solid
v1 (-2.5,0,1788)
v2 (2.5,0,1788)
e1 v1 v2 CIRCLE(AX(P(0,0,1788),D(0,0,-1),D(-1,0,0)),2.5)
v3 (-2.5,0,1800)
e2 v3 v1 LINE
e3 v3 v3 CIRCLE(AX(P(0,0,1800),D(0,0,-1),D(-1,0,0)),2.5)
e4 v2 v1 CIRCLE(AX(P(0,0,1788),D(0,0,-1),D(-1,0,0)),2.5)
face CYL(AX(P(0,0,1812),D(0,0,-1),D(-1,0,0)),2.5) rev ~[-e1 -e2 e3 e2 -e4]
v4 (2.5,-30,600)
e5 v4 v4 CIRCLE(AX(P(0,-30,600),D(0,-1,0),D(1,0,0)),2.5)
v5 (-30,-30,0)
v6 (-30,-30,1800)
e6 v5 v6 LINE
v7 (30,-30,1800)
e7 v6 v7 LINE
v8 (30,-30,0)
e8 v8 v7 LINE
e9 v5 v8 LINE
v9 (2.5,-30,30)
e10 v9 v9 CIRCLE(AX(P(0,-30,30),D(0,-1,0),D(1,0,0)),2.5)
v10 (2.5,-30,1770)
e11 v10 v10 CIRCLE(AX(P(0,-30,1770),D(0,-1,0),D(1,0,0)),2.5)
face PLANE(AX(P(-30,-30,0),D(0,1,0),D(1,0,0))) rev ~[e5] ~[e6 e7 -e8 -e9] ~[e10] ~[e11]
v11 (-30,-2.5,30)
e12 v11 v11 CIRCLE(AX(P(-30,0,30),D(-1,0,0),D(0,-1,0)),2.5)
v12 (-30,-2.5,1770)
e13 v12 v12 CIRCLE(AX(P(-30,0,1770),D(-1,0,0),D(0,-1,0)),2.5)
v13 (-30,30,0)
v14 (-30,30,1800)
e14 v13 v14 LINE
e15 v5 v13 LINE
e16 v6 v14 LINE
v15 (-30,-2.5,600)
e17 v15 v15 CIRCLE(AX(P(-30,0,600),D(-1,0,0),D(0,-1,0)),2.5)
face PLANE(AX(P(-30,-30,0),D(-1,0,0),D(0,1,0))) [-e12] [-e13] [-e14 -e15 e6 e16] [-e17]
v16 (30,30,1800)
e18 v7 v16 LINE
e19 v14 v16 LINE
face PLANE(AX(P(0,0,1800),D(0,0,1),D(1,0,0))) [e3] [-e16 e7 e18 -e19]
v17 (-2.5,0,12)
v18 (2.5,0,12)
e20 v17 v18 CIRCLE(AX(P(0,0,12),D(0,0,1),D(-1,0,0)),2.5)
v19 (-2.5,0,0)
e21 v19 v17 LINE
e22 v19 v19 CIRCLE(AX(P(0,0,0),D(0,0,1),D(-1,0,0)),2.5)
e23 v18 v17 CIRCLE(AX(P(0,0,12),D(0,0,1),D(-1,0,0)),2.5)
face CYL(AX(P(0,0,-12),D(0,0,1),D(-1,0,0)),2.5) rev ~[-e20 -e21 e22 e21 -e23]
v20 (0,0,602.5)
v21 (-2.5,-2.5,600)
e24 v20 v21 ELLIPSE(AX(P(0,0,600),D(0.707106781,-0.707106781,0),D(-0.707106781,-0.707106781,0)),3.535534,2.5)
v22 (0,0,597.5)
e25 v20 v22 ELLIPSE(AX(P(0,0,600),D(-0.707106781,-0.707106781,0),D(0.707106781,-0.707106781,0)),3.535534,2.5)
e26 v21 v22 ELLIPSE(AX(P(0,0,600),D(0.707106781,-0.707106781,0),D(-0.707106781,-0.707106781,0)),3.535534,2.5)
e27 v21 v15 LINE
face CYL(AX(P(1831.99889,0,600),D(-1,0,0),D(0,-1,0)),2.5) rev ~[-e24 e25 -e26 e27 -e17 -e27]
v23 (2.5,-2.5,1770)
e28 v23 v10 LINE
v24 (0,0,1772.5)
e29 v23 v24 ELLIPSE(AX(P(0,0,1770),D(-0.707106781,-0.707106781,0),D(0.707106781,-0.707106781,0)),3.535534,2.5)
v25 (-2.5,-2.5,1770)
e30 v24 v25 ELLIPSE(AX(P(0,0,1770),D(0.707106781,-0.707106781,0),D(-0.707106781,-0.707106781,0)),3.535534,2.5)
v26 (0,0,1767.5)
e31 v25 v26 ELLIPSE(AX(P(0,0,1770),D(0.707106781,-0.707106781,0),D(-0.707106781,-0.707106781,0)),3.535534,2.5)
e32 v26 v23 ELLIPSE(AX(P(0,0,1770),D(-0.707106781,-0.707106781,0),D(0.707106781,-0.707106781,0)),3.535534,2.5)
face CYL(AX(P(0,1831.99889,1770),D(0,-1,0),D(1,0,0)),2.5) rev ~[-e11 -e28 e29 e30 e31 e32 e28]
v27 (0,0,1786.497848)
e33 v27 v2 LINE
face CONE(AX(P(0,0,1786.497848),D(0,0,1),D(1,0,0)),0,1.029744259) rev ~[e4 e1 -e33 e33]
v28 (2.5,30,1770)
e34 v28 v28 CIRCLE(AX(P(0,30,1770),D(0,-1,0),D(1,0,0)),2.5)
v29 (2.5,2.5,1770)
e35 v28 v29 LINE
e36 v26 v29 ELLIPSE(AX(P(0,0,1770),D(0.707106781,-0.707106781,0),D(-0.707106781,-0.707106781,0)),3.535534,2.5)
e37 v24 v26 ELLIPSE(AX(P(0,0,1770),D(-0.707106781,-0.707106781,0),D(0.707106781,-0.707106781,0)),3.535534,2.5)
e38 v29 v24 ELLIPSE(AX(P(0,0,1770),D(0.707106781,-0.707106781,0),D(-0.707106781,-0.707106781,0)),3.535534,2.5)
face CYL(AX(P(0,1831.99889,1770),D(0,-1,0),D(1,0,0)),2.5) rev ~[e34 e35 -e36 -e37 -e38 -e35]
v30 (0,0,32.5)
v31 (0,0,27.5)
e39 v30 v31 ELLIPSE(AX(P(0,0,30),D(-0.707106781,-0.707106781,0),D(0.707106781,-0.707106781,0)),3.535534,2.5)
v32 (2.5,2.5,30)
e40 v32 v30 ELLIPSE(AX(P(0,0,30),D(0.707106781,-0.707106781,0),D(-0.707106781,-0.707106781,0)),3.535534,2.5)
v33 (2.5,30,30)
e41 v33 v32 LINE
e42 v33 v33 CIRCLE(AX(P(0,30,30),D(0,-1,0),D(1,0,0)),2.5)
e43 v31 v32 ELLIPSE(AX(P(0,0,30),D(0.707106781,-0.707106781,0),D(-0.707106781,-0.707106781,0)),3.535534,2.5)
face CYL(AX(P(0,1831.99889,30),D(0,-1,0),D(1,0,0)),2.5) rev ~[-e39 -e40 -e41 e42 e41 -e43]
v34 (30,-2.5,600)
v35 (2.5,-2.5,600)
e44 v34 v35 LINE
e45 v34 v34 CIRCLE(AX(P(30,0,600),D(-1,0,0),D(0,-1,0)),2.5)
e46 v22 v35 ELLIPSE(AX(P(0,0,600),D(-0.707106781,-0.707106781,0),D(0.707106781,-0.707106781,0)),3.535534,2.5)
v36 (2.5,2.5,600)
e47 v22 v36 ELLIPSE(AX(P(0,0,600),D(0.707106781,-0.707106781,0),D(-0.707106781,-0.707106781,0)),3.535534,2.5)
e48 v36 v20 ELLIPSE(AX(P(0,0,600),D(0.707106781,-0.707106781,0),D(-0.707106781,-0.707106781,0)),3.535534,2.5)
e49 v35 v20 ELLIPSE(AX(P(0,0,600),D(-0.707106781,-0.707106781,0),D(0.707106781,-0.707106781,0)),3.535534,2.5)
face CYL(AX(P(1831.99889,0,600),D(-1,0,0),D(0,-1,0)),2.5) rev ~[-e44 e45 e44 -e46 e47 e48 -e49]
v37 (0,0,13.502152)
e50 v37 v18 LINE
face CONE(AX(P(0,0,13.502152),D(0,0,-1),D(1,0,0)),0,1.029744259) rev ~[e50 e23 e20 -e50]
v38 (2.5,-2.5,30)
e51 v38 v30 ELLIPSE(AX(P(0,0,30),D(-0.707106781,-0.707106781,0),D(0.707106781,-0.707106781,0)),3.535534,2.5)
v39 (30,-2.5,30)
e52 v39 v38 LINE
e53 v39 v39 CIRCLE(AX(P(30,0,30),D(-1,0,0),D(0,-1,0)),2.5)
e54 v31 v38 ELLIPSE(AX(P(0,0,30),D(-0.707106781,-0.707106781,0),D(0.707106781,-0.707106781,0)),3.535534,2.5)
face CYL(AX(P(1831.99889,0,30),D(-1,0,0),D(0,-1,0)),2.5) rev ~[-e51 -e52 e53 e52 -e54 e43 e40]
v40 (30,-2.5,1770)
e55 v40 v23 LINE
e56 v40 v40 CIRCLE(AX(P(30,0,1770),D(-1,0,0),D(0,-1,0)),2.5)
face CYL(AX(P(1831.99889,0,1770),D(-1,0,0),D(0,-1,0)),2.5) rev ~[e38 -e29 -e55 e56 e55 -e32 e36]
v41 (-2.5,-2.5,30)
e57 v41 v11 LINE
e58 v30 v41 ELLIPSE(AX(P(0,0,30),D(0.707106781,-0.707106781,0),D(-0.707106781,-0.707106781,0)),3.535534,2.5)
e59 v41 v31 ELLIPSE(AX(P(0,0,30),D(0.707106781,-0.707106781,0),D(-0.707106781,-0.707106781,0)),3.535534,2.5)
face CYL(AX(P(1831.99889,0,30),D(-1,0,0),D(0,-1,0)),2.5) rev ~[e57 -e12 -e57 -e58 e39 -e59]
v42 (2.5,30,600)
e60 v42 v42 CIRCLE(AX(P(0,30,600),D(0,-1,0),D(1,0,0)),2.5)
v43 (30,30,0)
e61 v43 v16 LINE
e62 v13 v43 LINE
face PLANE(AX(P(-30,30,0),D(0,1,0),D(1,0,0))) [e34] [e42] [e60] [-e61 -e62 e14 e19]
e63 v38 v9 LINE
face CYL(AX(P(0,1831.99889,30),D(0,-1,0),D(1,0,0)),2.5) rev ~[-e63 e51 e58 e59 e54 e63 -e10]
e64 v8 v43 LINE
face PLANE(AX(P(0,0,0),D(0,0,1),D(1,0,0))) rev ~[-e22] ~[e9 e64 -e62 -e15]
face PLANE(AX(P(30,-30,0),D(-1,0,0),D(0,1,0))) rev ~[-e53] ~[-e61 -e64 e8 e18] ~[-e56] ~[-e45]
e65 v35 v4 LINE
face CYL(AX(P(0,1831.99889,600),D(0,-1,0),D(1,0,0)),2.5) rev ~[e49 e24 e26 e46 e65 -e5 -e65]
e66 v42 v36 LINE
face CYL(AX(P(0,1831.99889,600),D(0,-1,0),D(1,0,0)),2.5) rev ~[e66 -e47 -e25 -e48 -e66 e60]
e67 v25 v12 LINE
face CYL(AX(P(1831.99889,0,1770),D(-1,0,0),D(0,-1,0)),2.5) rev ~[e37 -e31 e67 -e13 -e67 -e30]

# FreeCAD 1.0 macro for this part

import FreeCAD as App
import Part
import Sketcher
from FreeCAD import Vector


def add_polygon(sketch, points):
    """Adds a closed chain of lines whose ends are joined by coincident constraints."""
    first, n = sketch.GeometryCount, len(points)
    for a, b in zip(points, points[1:] + points[:1]):
        sketch.addGeometry(Part.LineSegment(App.Vector(*a, 0), App.Vector(*b, 0)), False)
    for i in range(n):
        sketch.addConstraint(Sketcher.Constraint("Coincident", first + i, 2, first + (i + 1) % n, 1))

doc = App.newDocument("Part")
body = doc.addObject("PartDesign::Body", "Body")

sketch1 = doc.addObject("Sketcher::SketchObject", "Sketch")
body.addObject(sketch1)
sketch1.AttachmentSupport = (doc.XY_Plane, [""])
sketch1.MapMode = "FlatFace"
add_polygon(sketch1, [(-30, 30), (-30, -30), (30, -30), (30, 30)])
sketch1.addConstraint([
    Sketcher.Constraint("Vertical", 0),
    Sketcher.Constraint("Horizontal", 1),
    Sketcher.Constraint("Vertical", 2),
    Sketcher.Constraint("Horizontal", 3),
    Sketcher.Constraint("Symmetric", 0, 2, 2, 2, -1, 1),
    Sketcher.Constraint("Equal", 3, 0),
    Sketcher.Constraint("DistanceX", 1, 1, 1, 2, 60.0),
])
pad1 = doc.addObject("PartDesign::Pad", "Pad")
body.addObject(pad1)
pad1.Profile = sketch1
pad1.Length = 1800

sketch2 = doc.addObject("Sketcher::SketchObject", "Sketch001")
body.addObject(sketch2)
sketch2.AttachmentSupport = (doc.XY_Plane, [""])
sketch2.MapMode = "FlatFace"
sketch2.AttachmentOffset = App.Placement(Vector(0, 0, 1800), App.Rotation())
sketch2.addGeometry(Part.Circle(Vector(0, 0, 0), Vector(0, 0, 1), 2.5), False)
sketch2.addConstraint([
    Sketcher.Constraint("Coincident", 0, 3, -1, 1),
    Sketcher.Constraint("Diameter", 0, 5.0),
])
doc.recompute()
hole = doc.addObject("PartDesign::Hole", "Hole")
body.addObject(hole)
hole.Profile = sketch2
hole.ThreadType = "None"
hole.Diameter = 5
hole.DepthType = "Dimension"
hole.Depth = 12
hole.DrillPoint = "Angled"
hole.DrillPointAngle = 118

sketch3 = doc.addObject("Sketcher::SketchObject", "Sketch002")
body.addObject(sketch3)
sketch3.AttachmentSupport = (doc.XY_Plane, [""])
sketch3.MapMode = "FlatFace"
sketch3.addGeometry(Part.Circle(Vector(0, 0, 0), Vector(0, 0, 1), 2.5), False)
sketch3.addConstraint([
    Sketcher.Constraint("Coincident", 0, 3, -1, 1),
    Sketcher.Constraint("Diameter", 0, 5.0),
])
doc.recompute()
hole2 = doc.addObject("PartDesign::Hole", "Hole001")
body.addObject(hole2)
hole2.Profile = sketch3
hole2.ThreadType = "None"
hole2.Diameter = 5
hole2.DepthType = "Dimension"
hole2.Depth = 12
hole2.DrillPoint = "Angled"
hole2.DrillPointAngle = 118
hole2.Reversed = True

sketch4 = doc.addObject("Sketcher::SketchObject", "Sketch003")
body.addObject(sketch4)
sketch4.AttachmentSupport = (doc.XZ_Plane, [""])
sketch4.MapMode = "FlatFace"
sketch4.AttachmentOffset = App.Placement(Vector(0, 0, -30), App.Rotation())
sketch4.addGeometry([
    Part.Circle(Vector(0, 1770, 0), Vector(0, 0, 1), 2.5),
    Part.Circle(Vector(0, 30, 0), Vector(0, 0, 1), 2.5),
    Part.Circle(Vector(0, 600, 0), Vector(0, 0, 1), 2.5),
], False)
sketch4.addConstraint([
    Sketcher.Constraint("Equal", 0, 1),
    Sketcher.Constraint("Equal", 1, 2),
    Sketcher.Constraint("PointOnObject", 0, 3, -2),
    Sketcher.Constraint("PointOnObject", 1, 3, -2),
    Sketcher.Constraint("PointOnObject", 2, 3, -2),
    Sketcher.Constraint("Diameter", 0, 5.0),
    Sketcher.Constraint("DistanceY", -1, 1, 0, 3, 1770.0),
    Sketcher.Constraint("DistanceY", -1, 1, 1, 3, 30.0),
    Sketcher.Constraint("DistanceY", -1, 1, 2, 3, 600.0),
])
doc.recompute()
hole3 = doc.addObject("PartDesign::Hole", "Hole002")
body.addObject(hole3)
hole3.Profile = sketch4
hole3.ThreadType = "None"
hole3.Diameter = 5
hole3.DepthType = "ThroughAll"
hole3.Reversed = True

sketch5 = doc.addObject("Sketcher::SketchObject", "Sketch004")
body.addObject(sketch5)
sketch5.AttachmentSupport = (doc.YZ_Plane, [""])
sketch5.MapMode = "FlatFace"
sketch5.AttachmentOffset = App.Placement(Vector(0, 0, 30), App.Rotation())
sketch5.addGeometry([
    Part.Circle(Vector(0, 1770, 0), Vector(0, 0, 1), 2.5),
    Part.Circle(Vector(0, 30, 0), Vector(0, 0, 1), 2.5),
    Part.Circle(Vector(0, 600, 0), Vector(0, 0, 1), 2.5),
], False)
sketch5.addConstraint([
    Sketcher.Constraint("Equal", 0, 1),
    Sketcher.Constraint("Equal", 1, 2),
    Sketcher.Constraint("PointOnObject", 0, 3, -2),
    Sketcher.Constraint("PointOnObject", 1, 3, -2),
    Sketcher.Constraint("PointOnObject", 2, 3, -2),
    Sketcher.Constraint("Diameter", 0, 5.0),
    Sketcher.Constraint("DistanceY", -1, 1, 0, 3, 1770.0),
    Sketcher.Constraint("DistanceY", -1, 1, 1, 3, 30.0),
    Sketcher.Constraint("DistanceY", -1, 1, 2, 3, 600.0),
])
doc.recompute()
hole4 = doc.addObject("PartDesign::Hole", "Hole003")
body.addObject(hole4)
hole4.Profile = sketch5
hole4.ThreadType = "None"
hole4.Diameter = 5
hole4.DepthType = "ThroughAll"

doc.recompute()
